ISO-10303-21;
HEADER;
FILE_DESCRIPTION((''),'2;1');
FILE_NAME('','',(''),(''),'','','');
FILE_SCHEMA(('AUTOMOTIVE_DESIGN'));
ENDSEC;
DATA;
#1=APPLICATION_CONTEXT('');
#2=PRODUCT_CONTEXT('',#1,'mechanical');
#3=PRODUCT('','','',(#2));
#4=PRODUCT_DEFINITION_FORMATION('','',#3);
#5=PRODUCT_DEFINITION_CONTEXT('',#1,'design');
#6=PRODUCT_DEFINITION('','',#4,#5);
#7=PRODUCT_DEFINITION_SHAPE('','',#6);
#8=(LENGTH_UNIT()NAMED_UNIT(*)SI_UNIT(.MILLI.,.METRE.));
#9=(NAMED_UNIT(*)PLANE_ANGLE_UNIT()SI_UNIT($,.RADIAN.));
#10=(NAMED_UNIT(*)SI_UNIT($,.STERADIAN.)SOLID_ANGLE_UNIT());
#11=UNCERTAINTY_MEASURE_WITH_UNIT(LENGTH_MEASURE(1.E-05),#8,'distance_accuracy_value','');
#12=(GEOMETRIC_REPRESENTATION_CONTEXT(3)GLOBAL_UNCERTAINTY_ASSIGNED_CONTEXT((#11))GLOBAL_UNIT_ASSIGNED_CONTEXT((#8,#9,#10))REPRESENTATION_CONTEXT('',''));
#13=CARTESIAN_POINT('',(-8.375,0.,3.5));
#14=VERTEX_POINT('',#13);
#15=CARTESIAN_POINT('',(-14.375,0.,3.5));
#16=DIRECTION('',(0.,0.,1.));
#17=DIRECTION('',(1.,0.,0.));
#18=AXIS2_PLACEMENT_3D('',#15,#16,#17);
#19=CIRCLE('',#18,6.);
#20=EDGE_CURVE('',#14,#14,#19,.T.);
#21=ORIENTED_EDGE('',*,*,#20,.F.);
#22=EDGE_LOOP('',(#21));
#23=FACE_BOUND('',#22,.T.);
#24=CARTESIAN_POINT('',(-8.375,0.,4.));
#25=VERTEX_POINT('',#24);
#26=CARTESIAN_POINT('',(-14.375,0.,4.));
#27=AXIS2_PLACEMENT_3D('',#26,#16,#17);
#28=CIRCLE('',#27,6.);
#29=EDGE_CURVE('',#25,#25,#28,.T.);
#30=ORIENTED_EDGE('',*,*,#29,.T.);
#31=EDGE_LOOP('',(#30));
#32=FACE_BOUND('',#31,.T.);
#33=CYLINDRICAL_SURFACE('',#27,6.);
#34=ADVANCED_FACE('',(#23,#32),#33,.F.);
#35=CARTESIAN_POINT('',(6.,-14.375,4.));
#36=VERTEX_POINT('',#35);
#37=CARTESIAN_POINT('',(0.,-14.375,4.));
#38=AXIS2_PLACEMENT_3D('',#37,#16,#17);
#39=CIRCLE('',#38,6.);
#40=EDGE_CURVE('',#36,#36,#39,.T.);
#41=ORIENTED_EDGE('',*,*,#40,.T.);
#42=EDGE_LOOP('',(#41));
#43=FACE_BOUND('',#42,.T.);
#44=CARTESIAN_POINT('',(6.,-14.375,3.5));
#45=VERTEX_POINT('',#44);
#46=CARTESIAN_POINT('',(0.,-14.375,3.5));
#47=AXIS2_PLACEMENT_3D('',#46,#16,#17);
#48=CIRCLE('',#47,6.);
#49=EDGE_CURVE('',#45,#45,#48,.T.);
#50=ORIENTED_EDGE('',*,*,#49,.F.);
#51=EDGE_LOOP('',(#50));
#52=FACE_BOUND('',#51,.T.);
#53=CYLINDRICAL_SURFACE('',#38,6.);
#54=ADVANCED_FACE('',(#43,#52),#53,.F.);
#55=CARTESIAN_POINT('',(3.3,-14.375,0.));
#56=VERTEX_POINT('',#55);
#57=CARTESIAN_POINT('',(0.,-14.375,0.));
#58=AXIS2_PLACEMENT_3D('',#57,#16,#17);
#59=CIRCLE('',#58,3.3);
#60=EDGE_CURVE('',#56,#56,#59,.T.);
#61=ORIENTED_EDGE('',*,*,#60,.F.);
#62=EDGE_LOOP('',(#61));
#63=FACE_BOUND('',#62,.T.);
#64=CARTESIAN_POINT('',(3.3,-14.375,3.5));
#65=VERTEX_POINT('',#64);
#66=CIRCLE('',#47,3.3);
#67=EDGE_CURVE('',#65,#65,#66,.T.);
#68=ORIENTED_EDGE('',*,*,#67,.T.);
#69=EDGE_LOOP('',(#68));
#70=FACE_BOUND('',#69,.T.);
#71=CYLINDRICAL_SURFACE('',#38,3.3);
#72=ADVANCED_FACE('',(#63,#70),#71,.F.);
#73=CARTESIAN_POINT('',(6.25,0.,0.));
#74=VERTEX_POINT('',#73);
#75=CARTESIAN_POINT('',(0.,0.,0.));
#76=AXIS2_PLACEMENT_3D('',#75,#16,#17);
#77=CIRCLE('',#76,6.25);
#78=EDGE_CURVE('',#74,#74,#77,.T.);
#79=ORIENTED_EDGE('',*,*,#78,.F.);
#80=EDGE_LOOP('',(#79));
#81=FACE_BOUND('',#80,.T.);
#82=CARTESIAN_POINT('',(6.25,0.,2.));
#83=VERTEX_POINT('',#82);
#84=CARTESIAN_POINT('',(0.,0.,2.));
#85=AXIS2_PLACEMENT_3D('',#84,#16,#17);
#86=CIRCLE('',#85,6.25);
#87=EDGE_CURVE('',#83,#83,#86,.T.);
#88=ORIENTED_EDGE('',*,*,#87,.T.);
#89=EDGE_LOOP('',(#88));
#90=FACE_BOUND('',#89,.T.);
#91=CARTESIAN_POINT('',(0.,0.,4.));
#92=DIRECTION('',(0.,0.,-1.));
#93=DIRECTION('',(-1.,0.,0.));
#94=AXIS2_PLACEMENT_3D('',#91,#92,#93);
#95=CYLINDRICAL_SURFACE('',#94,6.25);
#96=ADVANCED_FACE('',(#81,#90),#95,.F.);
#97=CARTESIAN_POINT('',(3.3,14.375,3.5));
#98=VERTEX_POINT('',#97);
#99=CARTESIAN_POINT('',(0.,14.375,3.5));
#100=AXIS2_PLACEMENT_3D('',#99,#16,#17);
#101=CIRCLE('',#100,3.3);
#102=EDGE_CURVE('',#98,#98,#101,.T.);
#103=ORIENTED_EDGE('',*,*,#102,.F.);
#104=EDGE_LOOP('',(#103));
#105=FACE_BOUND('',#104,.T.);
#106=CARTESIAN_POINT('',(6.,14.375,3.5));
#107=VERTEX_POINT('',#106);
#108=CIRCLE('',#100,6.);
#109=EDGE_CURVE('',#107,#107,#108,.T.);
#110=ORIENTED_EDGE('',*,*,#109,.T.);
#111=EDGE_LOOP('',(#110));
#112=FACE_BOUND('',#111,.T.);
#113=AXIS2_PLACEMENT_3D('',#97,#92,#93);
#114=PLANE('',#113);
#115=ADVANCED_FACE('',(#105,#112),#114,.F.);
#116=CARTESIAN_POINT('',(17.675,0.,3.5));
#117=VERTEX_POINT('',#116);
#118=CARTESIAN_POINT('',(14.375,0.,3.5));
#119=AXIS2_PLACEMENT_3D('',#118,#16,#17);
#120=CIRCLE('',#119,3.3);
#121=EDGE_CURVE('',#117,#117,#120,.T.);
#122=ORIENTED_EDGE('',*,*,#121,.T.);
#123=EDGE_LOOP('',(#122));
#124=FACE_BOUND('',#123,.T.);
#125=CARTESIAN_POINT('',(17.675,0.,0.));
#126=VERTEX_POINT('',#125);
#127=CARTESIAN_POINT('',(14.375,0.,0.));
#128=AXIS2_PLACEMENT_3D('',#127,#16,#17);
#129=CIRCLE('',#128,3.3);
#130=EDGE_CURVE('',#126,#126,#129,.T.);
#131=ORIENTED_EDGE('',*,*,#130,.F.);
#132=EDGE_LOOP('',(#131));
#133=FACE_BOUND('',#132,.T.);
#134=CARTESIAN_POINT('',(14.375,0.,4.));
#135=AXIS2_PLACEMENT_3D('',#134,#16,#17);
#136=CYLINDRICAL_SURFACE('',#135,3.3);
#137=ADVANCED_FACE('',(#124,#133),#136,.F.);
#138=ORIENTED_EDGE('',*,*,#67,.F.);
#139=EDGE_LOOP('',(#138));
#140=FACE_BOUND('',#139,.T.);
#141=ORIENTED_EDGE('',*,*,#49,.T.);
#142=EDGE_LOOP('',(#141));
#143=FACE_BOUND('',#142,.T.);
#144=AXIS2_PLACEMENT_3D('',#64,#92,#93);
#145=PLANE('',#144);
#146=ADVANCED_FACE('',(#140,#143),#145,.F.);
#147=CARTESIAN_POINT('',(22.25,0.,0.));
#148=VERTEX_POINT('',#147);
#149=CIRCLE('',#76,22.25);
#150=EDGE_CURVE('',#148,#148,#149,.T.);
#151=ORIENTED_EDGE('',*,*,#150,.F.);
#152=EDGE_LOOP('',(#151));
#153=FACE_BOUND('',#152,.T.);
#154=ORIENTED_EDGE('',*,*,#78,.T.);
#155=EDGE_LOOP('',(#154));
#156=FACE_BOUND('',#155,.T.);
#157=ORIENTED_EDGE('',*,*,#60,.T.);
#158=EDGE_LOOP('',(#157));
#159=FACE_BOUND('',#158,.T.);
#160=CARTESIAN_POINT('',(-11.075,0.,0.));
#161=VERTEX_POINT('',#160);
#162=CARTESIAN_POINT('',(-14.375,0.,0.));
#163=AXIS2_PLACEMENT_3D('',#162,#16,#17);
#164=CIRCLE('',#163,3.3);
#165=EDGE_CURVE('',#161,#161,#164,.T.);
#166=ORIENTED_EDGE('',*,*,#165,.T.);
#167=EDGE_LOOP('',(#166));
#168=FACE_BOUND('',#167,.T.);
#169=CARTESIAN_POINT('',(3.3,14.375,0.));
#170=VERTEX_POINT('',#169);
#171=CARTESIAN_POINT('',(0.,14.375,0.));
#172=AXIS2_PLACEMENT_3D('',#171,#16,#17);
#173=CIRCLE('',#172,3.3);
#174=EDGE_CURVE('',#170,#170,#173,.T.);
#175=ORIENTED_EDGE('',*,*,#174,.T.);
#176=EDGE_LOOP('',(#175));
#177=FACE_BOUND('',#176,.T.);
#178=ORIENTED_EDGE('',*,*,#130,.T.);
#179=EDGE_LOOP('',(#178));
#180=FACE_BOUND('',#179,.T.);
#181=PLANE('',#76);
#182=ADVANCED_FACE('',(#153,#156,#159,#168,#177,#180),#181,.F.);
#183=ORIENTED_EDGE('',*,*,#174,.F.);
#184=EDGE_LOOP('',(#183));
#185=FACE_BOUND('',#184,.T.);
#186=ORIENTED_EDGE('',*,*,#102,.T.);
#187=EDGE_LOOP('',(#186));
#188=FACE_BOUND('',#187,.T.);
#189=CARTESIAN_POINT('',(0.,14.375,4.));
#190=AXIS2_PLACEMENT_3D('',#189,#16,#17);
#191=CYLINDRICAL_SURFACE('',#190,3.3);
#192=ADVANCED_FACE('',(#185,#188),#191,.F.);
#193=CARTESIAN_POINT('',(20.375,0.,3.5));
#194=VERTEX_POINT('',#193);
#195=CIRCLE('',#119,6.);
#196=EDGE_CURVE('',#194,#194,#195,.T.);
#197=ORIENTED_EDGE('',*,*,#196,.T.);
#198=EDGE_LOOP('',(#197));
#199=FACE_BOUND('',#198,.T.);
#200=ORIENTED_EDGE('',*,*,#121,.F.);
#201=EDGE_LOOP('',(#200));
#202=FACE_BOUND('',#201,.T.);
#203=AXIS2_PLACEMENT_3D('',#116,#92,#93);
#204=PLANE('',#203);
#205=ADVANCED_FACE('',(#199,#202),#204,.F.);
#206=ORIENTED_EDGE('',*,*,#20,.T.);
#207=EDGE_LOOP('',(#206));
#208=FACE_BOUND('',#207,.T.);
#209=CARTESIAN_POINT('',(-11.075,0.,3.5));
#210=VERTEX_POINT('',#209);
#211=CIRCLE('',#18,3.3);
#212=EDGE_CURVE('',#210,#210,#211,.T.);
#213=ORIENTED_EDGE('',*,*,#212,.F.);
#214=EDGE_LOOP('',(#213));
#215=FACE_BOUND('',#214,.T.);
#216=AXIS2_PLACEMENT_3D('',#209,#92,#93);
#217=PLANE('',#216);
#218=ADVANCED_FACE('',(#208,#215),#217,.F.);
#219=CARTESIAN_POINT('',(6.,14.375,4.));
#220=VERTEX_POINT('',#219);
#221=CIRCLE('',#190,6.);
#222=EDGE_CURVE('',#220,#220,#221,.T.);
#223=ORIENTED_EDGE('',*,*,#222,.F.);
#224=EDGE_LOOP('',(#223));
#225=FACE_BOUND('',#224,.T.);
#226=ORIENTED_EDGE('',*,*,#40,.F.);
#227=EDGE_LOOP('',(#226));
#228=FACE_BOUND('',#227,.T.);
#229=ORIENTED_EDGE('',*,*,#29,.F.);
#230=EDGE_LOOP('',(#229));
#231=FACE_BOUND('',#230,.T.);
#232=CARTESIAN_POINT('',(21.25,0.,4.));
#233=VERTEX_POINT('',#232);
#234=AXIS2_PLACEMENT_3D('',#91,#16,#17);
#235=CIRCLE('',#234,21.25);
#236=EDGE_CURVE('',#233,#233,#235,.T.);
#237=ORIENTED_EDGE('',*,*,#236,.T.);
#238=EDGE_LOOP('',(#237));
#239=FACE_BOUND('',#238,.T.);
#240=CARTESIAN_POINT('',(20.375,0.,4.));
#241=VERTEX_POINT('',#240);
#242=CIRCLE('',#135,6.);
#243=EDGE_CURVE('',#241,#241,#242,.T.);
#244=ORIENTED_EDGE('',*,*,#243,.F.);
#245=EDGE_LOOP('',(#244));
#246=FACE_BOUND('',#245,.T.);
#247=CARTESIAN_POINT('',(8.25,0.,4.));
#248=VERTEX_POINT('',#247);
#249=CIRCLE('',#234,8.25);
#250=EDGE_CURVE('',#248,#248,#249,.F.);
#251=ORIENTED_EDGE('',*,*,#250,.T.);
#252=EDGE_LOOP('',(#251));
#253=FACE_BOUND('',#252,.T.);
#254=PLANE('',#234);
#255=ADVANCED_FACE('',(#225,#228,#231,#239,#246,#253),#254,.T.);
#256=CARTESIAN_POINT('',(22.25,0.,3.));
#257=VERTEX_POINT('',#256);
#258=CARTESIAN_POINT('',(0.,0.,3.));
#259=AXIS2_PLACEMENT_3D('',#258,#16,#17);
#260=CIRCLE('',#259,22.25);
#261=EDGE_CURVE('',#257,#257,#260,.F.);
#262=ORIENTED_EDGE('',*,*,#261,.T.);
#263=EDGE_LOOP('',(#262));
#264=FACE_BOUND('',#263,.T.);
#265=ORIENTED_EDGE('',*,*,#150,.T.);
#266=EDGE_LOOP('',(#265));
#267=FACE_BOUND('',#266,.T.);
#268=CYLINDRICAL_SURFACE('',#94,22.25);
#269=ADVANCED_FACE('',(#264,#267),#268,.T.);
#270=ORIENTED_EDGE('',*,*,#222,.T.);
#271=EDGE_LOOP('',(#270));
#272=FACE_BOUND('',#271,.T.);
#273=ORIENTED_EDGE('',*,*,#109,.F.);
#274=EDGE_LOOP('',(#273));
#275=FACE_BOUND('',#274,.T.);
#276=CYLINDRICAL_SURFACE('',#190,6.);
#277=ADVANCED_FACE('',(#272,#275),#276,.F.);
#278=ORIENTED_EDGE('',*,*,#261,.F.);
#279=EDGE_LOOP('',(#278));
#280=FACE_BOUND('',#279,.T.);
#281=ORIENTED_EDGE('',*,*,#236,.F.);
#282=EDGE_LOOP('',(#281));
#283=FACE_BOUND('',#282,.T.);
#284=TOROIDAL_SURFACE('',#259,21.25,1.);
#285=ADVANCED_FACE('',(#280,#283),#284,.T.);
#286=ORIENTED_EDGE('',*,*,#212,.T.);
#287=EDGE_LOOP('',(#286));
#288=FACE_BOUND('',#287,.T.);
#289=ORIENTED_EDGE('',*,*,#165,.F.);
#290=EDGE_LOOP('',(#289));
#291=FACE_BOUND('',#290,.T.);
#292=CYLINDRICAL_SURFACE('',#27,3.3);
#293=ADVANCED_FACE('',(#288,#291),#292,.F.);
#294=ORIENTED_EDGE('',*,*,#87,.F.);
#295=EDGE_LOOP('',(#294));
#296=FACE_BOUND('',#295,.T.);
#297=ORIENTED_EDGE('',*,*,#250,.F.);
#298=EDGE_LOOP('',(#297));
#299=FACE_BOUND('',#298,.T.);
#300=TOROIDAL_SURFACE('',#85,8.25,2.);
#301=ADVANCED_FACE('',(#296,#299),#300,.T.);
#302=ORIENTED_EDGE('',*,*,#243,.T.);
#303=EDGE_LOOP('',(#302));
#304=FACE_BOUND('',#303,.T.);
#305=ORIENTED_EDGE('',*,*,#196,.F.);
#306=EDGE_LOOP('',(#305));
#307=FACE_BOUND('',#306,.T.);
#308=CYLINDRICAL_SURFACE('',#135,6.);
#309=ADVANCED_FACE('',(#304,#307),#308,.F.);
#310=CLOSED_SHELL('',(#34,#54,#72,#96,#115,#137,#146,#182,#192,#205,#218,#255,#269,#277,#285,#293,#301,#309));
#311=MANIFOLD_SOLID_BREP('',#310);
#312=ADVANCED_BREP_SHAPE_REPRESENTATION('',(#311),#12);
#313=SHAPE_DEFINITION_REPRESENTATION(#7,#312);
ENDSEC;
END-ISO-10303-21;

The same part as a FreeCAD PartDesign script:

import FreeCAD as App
import Part
import Sketcher


def edges_at(feature, points):
    """Names of the edges that pass closest to the given points."""
    edges = feature.Shape.Edges
    near = lambda p: min(range(len(edges)), key=lambda i: edges[i].distToShape(Part.Vertex(*p))[0])
    return sorted({f"Edge{near(p) + 1}" for p in points})

doc = App.newDocument("Part")
params = doc.addObject("Spreadsheet::Sheet", "Params")
for row, (alias, value) in enumerate([
    ("sketch1_diameter", "44.5 mm"),
    ("sketch1_diameter2", "12.5 mm"),
    ("pad1_length", "4 mm"),
    ("sketch2_diameter", "6.6 mm"),
    ("hole_diameter", "6.6 mm"),
    ("hole_cbore_diameter", "12 mm"),
    ("hole_cbore_depth", "0.5 mm"),
    ("fillet_radius", "1 mm"),
    ("fillet2_radius", "2 mm"),
], start=1):
    params.set(f"A{row}", alias)
    params.set(f"B{row}", "=" + value)
    params.setAlias(f"B{row}", alias)

body = doc.addObject("PartDesign::Body", "Body")

sketch1 = body.newObject("Sketcher::SketchObject", "Sketch")
sketch1.AttachmentSupport = (doc.getObject("XY_Plane"), [""])
sketch1.MapMode = "FlatFace"
sketch1.addGeometry([
    Part.Circle(App.Vector(0, 0, 0), App.Vector(0, 0, 1), 22),
    Part.Circle(App.Vector(0, 0, 0), App.Vector(0, 0, 1), 6),
], False)
sketch1.addConstraint([
    Sketcher.Constraint("Coincident", 0, 3, -1, 1),
    Sketcher.Constraint("Coincident", 1, 3, -1, 1),
    Sketcher.Constraint("Diameter", 0, 44.5),
    Sketcher.Constraint("Diameter", 1, 12.5),
])
sketch1.setExpression("Constraints[2]", "Params.sketch1_diameter")
sketch1.setExpression("Constraints[3]", "Params.sketch1_diameter2")
pad1 = body.newObject("PartDesign::Pad", "Pad")
pad1.Profile = sketch1
pad1.setExpression("Length", "Params.pad1_length")

sketch2 = body.newObject("Sketcher::SketchObject", "Sketch001")
sketch2.AttachmentSupport = (doc.getObject("XY_Plane"), [""])
sketch2.MapMode = "FlatFace"
sketch2.AttachmentOffset = App.Placement(App.Vector(0, 0, 4), App.Rotation())
sketch2.addGeometry([
    Part.Circle(App.Vector(-14.4, 0, 0), App.Vector(0, 0, 1), 3.3),
    Part.Circle(App.Vector(0, 14.4, 0), App.Vector(0, 0, 1), 3.3),
    Part.Circle(App.Vector(14.4, 0, 0), App.Vector(0, 0, 1), 3.3),
    Part.Circle(App.Vector(0, -14.4, 0), App.Vector(0, 0, 1), 3.3),
], False)
sketch2.addConstraint([
    Sketcher.Constraint("Equal", 0, 1),
    Sketcher.Constraint("Equal", 1, 2),
    Sketcher.Constraint("Equal", 2, 3),
    Sketcher.Constraint("Symmetric", 0, 3, 2, 3, -1, 1),
    Sketcher.Constraint("Symmetric", 1, 3, 3, 3, -1, 1),
    Sketcher.Constraint("PointOnObject", 0, 3, -1),
    Sketcher.Constraint("PointOnObject", 1, 3, -2),
    Sketcher.Constraint("Diameter", 0, 6.6),
    Sketcher.Constraint("DistanceX", 0, 3, 2, 3, 28.75),
    Sketcher.Constraint("DistanceY", 3, 3, 1, 3, 28.75),
])
sketch2.setExpression("Constraints[7]", "Params.sketch2_diameter")
doc.recompute()
hole = body.newObject("PartDesign::Hole", "Hole")
hole.Profile = sketch2
hole.ThreadType = "None"
hole.setExpression("Diameter", "Params.hole_diameter")
hole.DepthType = "ThroughAll"
hole.HoleCutType = "Counterbore"
hole.setExpression("HoleCutDiameter", "Params.hole_cbore_diameter")
hole.setExpression("HoleCutDepth", "Params.hole_cbore_depth")
doc.recompute()

fillet = body.newObject("PartDesign::Fillet", "Fillet")
fillet.Base = (hole, edges_at(hole, [(-22.25, 0, 4)]))
fillet.setExpression("Radius", "Params.fillet_radius")
doc.recompute()

fillet2 = body.newObject("PartDesign::Fillet", "Fillet001")
fillet2.Base = (fillet, edges_at(fillet, [(-6.25, 0, 4)]))
fillet2.setExpression("Radius", "Params.fillet2_radius")

doc.recompute()
